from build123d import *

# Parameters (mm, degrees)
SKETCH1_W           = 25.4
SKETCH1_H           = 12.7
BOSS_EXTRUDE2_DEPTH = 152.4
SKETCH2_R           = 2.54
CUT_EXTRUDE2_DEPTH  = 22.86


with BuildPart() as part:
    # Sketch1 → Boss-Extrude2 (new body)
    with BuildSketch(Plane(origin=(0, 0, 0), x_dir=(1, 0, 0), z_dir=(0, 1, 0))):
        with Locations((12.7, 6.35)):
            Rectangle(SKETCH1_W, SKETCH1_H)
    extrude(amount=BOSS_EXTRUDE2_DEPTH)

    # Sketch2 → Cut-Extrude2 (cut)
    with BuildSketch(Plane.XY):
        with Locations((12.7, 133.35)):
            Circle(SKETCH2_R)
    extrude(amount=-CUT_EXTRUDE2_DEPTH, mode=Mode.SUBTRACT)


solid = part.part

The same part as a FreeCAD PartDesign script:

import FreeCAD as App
import Part
import Sketcher

V = App.Vector
Q = App.Units.Quantity


def add_polygon(sketch, points):
    """Adds a closed chain of lines whose ends are joined by coincident constraints."""
    first, n = sketch.GeometryCount, len(points)
    for a, b in zip(points, points[1:] + points[:1]):
        sketch.addGeometry(Part.LineSegment(App.Vector(*a, 0), App.Vector(*b, 0)), False)
    for i in range(n):
        sketch.addConstraint(Sketcher.Constraint("Coincident", first + i, 2, first + (i + 1) % n, 1))

doc = App.newDocument("Part")
body = doc.addObject("PartDesign::Body", "Body")

sketch1 = body.newObject("Sketcher::SketchObject", "Sketch")
sketch1.AttachmentSupport = (doc.getObject("XZ_Plane"), [""])
sketch1.MapMode = "FlatFace"
add_polygon(sketch1, [(0, -13), (0, 0), (25, 0), (25, -13)])
sketch1.addConstraint([
    Sketcher.Constraint("Vertical", 0),
    Sketcher.Constraint("Horizontal", 1),
    Sketcher.Constraint("Vertical", 2),
    Sketcher.Constraint("Horizontal", 3),
    Sketcher.Constraint("Coincident", 0, 2, -1, 1),
    Sketcher.Constraint("DistanceX", 1, 1, 1, 2, Q("1 in")),
    Sketcher.Constraint("DistanceY", 0, 1, 0, 2, Q("0.5 in")),
])
pad1 = body.newObject("PartDesign::Pad", "Pad")
pad1.Profile = sketch1
pad1.Length = Q("6 in")
pad1.Reversed = True

sketch2 = body.newObject("Sketcher::SketchObject", "Sketch001")
sketch2.AttachmentSupport = (doc.getObject("XY_Plane"), [""])
sketch2.MapMode = "FlatFace"
sketch2.addGeometry(Part.Circle(V(12.7, 133.3, 0), V(0, 0, 1), 2.5), False)
sketch2.addConstraint([
    Sketcher.Constraint("Diameter", 0, Q("0.2 in")),
    Sketcher.Constraint("DistanceX", -1, 1, 0, 3, Q("0.5 in")),
    Sketcher.Constraint("DistanceY", -1, 1, 0, 3, Q("5.25 in")),
])
pocket1 = body.newObject("PartDesign::Pocket", "Pocket")
pocket1.Profile = sketch2
pocket1.Length = Q("0.9 in")

doc.recompute()
